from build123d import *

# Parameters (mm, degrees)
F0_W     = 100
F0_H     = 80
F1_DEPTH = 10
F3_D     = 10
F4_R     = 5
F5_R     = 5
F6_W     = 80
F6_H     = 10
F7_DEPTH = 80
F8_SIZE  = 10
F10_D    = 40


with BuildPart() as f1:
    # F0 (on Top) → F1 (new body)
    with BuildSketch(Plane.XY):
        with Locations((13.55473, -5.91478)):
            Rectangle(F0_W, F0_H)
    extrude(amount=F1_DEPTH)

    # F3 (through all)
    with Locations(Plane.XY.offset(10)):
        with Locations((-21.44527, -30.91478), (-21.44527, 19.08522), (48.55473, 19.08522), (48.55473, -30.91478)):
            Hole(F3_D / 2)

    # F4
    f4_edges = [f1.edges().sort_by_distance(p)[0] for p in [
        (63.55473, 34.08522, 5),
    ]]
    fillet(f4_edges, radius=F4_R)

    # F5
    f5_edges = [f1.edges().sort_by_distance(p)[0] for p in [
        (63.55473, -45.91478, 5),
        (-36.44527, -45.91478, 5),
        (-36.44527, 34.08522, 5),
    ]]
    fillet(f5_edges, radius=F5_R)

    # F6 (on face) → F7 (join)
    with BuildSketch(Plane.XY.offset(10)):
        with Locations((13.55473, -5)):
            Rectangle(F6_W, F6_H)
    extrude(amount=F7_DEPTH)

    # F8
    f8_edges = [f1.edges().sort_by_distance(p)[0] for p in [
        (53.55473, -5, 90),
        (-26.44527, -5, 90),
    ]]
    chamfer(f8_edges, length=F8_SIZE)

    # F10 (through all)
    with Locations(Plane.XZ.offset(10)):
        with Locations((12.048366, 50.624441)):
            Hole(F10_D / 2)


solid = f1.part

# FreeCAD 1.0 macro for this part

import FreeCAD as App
import Part
import Sketcher

V = App.Vector
Q = App.Units.Quantity


def edges_at(feature, points):
    """Names of the edges that pass closest to the given points."""
    edges = feature.Shape.Edges
    near = lambda p: min(range(len(edges)), key=lambda i: edges[i].distToShape(Part.Vertex(*p))[0])
    return sorted({f"Edge{near(p) + 1}" for p in points})

doc = App.newDocument("Part")
body = doc.addObject("PartDesign::Body", "Body")

# Sketch on XY plane
sketch1 = body.newObject("Sketcher::SketchObject", "Sketch")
sketch1.AttachmentSupport = (doc.getObject("XY_Plane"), [""])
sketch1.MapMode = "FlatFace"
sketch1.addGeometry(Part.LineSegment(V(-36, 34, 0), V(-36, -46, 0)), False)
sketch1.addGeometry(Part.LineSegment(V(-36, -46, 0), V(64, -46, 0)), False)
sketch1.addGeometry(Part.LineSegment(V(64, -46, 0), V(64, 34, 0)), False)
sketch1.addGeometry(Part.LineSegment(V(64, 34, 0), V(-36, 34, 0)), False)
sketch1.addConstraint(Sketcher.Constraint("Coincident", 0, 2, 1, 1))
sketch1.addConstraint(Sketcher.Constraint("Coincident", 1, 2, 2, 1))
sketch1.addConstraint(Sketcher.Constraint("Coincident", 2, 2, 3, 1))
sketch1.addConstraint(Sketcher.Constraint("Coincident", 3, 2, 0, 1))
sketch1.addConstraint(Sketcher.Constraint("Vertical", 0))
sketch1.addConstraint(Sketcher.Constraint("Horizontal", 1))
sketch1.addConstraint(Sketcher.Constraint("Vertical", 2))
sketch1.addConstraint(Sketcher.Constraint("Horizontal", 3))
sketch1.addConstraint(Sketcher.Constraint("DistanceX", 1, 1, 1, 2, Q("100 mm")))
sketch1.addConstraint(Sketcher.Constraint("DistanceY", 0, 2, 0, 1, Q("80 mm")))
sketch1.addConstraint(Sketcher.Constraint("DistanceX", 0, 2, -1, 1, Q("36.44527 mm")))
sketch1.addConstraint(Sketcher.Constraint("DistanceY", 0, 2, -1, 1, Q("45.91478 mm")))
pad1 = body.newObject("PartDesign::Pad", "Pad")
pad1.Profile = sketch1
pad1.Length = 10

# Sketch on XY plane
sketch2 = body.newObject("Sketcher::SketchObject", "Sketch001")
sketch2.AttachmentSupport = (doc.getObject("XY_Plane"), [""])
sketch2.MapMode = "FlatFace"
sketch2.AttachmentOffset = App.Placement(V(0, 0, 10), App.Rotation())
sketch2.addGeometry(Part.Circle(V(-21, -31, 0), V(0, 0, 1), 5), False)
sketch2.addGeometry(Part.Circle(V(-21, 19, 0), V(0, 0, 1), 5), False)
sketch2.addGeometry(Part.Circle(V(49, 19, 0), V(0, 0, 1), 5), False)
sketch2.addGeometry(Part.Circle(V(49, -31, 0), V(0, 0, 1), 5), False)
sketch2.addConstraint(Sketcher.Constraint("Equal", 0, 1))
sketch2.addConstraint(Sketcher.Constraint("Equal", 1, 2))
sketch2.addConstraint(Sketcher.Constraint("Equal", 2, 3))
sketch2.addConstraint(Sketcher.Constraint("Horizontal", 1, 3, 2, 3))
sketch2.addConstraint(Sketcher.Constraint("Horizontal", 0, 3, 3, 3))
sketch2.addConstraint(Sketcher.Constraint("Vertical", 0, 3, 1, 3))
sketch2.addConstraint(Sketcher.Constraint("Vertical", 2, 3, 3, 3))
sketch2.addConstraint(Sketcher.Constraint("Diameter", 0, Q("10 mm")))
sketch2.addConstraint(Sketcher.Constraint("DistanceY", 0, 3, 1, 3, Q("50 mm")))
sketch2.addConstraint(Sketcher.Constraint("DistanceX", 1, 3, 2, 3, Q("70 mm")))
sketch2.addConstraint(Sketcher.Constraint("DistanceX", 0, 3, -1, 1, Q("21.44527 mm")))
sketch2.addConstraint(Sketcher.Constraint("DistanceY", 0, 3, -1, 1, Q("30.91478 mm")))
doc.recompute()
hole = body.newObject("PartDesign::Hole", "Hole")
hole.Profile = sketch2
hole.ThreadType = "None"
hole.Diameter = 10
hole.DepthType = "ThroughAll"
doc.recompute()

fillet = body.newObject("PartDesign::Fillet", "Fillet")
fillet.Base = (hole, edges_at(hole, [(63.555, 34.085, 5)]))
fillet.Radius = 5
doc.recompute()

fillet2 = body.newObject("PartDesign::Fillet", "Fillet001")
fillet2.Base = (fillet, edges_at(fillet, [(63.555, -45.915, 5), (-36.445, -45.915, 5), (-36.445, 34.085, 5)]))
fillet2.Radius = 5

# Sketch on XY plane
sketch3 = body.newObject("Sketcher::SketchObject", "Sketch002")
sketch3.AttachmentSupport = (doc.getObject("XY_Plane"), [""])
sketch3.MapMode = "FlatFace"
sketch3.AttachmentOffset = App.Placement(V(0, 0, 10), App.Rotation())
sketch3.addGeometry(Part.LineSegment(V(-26, 0, 0), V(-26, -10, 0)), False)
sketch3.addGeometry(Part.LineSegment(V(-26, -10, 0), V(54, -10, 0)), False)
sketch3.addGeometry(Part.LineSegment(V(54, -10, 0), V(54, 0, 0)), False)
sketch3.addGeometry(Part.LineSegment(V(54, 0, 0), V(-26, 0, 0)), False)
sketch3.addConstraint(Sketcher.Constraint("Coincident", 0, 2, 1, 1))
sketch3.addConstraint(Sketcher.Constraint("Coincident", 1, 2, 2, 1))
sketch3.addConstraint(Sketcher.Constraint("Coincident", 2, 2, 3, 1))
sketch3.addConstraint(Sketcher.Constraint("Coincident", 3, 2, 0, 1))
sketch3.addConstraint(Sketcher.Constraint("Vertical", 0))
sketch3.addConstraint(Sketcher.Constraint("Horizontal", 1))
sketch3.addConstraint(Sketcher.Constraint("Vertical", 2))
sketch3.addConstraint(Sketcher.Constraint("Horizontal", 3))
sketch3.addConstraint(Sketcher.Constraint("PointOnObject", 2, 2, -1))
sketch3.addConstraint(Sketcher.Constraint("DistanceX", 1, 1, 1, 2, Q("80 mm")))
sketch3.addConstraint(Sketcher.Constraint("DistanceY", 0, 2, 0, 1, Q("10 mm")))
sketch3.addConstraint(Sketcher.Constraint("DistanceX", 0, 2, -1, 1, Q("26.44527 mm")))
pad2 = body.newObject("PartDesign::Pad", "Pad001")
pad2.Profile = sketch3
pad2.Length = 80
doc.recompute()

chamfer = body.newObject("PartDesign::Chamfer", "Chamfer")
chamfer.Base = (pad2, edges_at(pad2, [(53.555, -5, 90), (-26.445, -5, 90)]))
chamfer.Size = 10

# Sketch on XZ plane
sketch4 = body.newObject("Sketcher::SketchObject", "Sketch003")
sketch4.AttachmentSupport = (doc.getObject("XZ_Plane"), [""])
sketch4.MapMode = "FlatFace"
sketch4.AttachmentOffset = App.Placement(V(0, 0, 10), App.Rotation())
sketch4.addGeometry(Part.Circle(V(12, 51, 0), V(0, 0, 1), 20), False)
sketch4.addConstraint(Sketcher.Constraint("Diameter", 0, Q("40 mm")))
sketch4.addConstraint(Sketcher.Constraint("DistanceY", -1, 1, 0, 3, Q("50.624441 mm")))
sketch4.addConstraint(Sketcher.Constraint("DistanceX", -1, 1, 0, 3, Q("12.048366 mm")))
doc.recompute()
hole2 = body.newObject("PartDesign::Hole", "Hole001")
hole2.Profile = sketch4
hole2.ThreadType = "None"
hole2.Diameter = 40
hole2.DepthType = "ThroughAll"

doc.recompute()
